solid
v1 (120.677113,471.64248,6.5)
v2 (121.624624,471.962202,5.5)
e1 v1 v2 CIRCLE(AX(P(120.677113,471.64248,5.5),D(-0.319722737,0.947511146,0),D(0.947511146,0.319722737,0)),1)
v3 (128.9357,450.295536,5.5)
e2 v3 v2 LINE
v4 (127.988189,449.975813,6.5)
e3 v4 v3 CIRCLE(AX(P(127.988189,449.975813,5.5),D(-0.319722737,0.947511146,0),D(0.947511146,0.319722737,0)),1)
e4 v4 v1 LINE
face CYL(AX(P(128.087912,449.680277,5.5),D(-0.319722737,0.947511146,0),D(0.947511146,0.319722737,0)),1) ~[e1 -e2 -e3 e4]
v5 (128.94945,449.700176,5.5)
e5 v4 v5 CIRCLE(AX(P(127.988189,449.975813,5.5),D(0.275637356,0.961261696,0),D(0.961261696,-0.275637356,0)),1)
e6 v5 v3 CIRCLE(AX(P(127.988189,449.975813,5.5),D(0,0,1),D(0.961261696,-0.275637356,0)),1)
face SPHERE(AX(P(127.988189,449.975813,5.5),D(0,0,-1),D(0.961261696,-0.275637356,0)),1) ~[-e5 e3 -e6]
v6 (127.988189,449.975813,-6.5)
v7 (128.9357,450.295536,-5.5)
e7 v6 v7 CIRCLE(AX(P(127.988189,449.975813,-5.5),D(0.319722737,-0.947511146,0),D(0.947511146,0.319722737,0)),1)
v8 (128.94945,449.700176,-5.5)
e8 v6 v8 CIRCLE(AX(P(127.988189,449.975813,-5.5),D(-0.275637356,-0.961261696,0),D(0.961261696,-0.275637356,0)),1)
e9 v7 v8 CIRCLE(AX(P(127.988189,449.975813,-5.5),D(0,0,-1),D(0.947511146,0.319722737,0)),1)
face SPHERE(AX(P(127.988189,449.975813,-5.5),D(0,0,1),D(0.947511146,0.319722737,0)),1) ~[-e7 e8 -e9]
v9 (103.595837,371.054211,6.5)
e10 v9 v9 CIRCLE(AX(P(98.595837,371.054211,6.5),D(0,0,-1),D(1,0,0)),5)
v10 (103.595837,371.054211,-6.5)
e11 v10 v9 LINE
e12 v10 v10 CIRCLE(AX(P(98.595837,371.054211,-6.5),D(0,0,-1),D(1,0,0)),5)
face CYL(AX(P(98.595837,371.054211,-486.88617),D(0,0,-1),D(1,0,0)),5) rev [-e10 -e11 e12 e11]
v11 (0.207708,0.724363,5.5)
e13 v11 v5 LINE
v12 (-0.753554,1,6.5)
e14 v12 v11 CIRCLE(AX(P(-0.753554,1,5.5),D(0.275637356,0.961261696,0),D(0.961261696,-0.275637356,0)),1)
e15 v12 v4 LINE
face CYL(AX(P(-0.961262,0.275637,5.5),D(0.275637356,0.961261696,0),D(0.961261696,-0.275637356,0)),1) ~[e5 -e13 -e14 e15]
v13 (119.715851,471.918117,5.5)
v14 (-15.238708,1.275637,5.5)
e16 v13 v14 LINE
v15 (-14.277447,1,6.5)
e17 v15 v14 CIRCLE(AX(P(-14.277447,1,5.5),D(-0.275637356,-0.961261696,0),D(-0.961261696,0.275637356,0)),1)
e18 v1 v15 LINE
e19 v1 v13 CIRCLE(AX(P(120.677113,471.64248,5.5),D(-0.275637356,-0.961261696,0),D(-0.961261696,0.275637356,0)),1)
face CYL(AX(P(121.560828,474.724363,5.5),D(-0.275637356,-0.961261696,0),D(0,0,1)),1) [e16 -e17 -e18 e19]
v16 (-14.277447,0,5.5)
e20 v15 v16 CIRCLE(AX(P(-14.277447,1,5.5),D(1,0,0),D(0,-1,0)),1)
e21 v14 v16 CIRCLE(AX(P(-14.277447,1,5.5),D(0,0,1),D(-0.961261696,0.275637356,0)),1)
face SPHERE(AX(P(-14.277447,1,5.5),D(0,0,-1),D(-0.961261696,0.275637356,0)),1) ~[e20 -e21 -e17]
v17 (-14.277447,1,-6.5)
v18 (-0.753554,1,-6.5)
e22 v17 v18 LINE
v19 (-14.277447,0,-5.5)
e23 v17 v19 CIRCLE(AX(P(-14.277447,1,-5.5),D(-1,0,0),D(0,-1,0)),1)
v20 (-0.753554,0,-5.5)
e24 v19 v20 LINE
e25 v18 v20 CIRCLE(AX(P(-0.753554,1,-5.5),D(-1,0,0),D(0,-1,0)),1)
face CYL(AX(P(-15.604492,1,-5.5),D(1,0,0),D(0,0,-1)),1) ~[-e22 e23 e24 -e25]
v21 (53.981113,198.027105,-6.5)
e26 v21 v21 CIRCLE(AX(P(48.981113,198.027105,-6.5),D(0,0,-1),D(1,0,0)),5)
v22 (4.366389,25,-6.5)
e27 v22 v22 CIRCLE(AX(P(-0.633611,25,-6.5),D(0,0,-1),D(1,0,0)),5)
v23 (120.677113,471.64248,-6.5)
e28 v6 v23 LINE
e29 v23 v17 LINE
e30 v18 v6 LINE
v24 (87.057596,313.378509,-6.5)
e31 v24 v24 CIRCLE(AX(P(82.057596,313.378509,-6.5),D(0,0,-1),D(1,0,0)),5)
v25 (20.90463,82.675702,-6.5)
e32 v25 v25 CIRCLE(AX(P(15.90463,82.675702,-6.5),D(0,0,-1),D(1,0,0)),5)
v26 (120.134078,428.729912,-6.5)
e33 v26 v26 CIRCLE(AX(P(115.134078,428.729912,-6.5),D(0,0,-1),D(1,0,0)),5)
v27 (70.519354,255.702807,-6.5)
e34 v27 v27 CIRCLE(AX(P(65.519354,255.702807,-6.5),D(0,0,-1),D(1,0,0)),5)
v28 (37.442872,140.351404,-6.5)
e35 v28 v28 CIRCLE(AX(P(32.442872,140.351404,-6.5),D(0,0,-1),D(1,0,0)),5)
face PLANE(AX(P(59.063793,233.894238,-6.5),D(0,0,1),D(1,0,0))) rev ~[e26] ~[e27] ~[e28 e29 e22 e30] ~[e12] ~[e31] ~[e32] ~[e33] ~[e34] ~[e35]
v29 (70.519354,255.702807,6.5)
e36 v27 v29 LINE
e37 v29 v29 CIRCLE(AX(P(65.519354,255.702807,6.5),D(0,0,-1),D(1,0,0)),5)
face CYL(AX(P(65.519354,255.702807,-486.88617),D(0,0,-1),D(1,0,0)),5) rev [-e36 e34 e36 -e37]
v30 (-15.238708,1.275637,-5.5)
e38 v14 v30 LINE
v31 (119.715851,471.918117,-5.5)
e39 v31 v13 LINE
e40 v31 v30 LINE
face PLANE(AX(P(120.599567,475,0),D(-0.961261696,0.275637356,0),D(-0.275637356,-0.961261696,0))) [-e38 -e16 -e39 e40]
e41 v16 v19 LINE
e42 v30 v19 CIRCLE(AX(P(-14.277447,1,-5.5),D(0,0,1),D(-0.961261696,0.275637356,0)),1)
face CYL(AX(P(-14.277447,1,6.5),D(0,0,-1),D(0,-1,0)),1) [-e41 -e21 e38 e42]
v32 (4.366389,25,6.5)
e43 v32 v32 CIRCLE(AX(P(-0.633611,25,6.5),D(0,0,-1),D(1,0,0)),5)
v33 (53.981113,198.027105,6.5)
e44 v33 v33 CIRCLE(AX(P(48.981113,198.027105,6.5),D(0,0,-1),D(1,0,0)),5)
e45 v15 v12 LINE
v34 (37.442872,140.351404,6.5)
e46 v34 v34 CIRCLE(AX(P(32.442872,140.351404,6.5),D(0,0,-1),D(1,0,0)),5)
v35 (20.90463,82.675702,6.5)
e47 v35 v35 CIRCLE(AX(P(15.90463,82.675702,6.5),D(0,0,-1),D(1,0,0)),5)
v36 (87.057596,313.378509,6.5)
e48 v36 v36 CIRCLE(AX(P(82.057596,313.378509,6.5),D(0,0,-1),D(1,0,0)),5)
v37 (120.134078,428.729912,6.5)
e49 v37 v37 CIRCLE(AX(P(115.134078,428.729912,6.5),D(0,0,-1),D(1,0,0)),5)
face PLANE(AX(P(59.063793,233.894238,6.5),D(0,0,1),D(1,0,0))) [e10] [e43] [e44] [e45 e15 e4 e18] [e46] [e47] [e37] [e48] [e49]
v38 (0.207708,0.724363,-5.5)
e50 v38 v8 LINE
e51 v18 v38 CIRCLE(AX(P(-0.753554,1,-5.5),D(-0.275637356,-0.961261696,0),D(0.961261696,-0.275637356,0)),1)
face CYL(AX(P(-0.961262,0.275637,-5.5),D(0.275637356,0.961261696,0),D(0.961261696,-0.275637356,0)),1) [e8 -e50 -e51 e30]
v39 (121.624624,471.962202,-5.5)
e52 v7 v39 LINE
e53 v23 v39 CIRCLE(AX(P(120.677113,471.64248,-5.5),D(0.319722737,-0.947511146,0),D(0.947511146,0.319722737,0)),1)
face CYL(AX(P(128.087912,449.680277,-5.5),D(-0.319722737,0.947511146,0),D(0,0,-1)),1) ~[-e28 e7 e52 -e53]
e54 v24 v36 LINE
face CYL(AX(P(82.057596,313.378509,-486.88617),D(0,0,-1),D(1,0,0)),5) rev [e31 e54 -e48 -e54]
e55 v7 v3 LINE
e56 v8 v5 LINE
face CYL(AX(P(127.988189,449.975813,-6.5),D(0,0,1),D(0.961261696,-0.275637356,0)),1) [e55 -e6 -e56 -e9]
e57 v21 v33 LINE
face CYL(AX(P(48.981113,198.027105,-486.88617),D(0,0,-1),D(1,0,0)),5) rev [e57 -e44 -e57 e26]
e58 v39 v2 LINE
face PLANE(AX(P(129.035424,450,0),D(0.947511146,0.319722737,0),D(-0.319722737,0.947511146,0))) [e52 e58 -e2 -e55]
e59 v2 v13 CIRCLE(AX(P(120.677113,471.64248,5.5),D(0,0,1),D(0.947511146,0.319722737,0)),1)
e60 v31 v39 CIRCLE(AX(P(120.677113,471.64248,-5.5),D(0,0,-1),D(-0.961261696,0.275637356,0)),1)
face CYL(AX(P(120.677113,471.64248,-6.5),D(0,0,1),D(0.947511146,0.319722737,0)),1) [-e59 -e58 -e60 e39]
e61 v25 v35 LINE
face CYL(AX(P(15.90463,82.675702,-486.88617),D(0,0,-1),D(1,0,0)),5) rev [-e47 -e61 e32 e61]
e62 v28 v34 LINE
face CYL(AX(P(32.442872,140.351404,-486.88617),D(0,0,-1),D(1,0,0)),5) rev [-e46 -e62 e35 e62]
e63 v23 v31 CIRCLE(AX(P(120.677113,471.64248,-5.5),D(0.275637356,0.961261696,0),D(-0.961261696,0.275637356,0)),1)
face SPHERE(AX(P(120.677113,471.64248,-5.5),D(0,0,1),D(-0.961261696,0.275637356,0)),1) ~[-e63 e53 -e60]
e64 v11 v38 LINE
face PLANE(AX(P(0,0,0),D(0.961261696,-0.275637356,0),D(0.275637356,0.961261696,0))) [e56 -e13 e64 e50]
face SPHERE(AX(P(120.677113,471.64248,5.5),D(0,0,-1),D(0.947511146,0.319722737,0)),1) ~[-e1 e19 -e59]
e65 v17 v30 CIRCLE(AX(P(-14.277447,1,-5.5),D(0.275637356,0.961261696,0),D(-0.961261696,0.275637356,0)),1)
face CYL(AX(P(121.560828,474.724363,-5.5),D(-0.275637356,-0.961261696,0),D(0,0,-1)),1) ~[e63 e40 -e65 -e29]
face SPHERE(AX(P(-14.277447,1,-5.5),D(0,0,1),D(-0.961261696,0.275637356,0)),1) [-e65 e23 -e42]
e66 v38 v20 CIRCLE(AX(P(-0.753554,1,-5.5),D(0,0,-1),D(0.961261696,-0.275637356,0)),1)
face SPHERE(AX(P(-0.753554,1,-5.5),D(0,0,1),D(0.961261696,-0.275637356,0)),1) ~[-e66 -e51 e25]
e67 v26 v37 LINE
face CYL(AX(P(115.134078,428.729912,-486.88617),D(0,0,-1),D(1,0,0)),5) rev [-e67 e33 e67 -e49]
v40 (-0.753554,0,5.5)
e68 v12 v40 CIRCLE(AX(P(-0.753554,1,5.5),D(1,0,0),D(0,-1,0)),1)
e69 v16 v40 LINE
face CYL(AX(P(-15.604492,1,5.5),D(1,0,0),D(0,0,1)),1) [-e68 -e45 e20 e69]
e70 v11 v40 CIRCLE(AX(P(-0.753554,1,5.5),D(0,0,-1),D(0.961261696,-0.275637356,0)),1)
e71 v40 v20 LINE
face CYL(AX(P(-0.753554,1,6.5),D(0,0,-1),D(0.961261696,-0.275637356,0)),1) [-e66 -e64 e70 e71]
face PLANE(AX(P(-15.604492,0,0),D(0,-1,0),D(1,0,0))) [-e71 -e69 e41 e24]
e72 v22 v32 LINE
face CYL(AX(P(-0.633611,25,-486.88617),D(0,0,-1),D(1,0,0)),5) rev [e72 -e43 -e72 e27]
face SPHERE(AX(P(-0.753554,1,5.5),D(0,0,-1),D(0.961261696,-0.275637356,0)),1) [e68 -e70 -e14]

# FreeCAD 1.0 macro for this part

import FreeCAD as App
import Part
import Sketcher
from FreeCAD import Vector
Q = App.Units.Quantity


def edges_at(feature, points):
    """Names of the edges that pass closest to the given points."""
    edges = feature.Shape.Edges
    near = lambda p: min(range(len(edges)), key=lambda i: edges[i].distToShape(Part.Vertex(*p))[0])
    return sorted({f"Edge{near(p) + 1}" for p in points})


def add_polygon(sketch, points):
    """Adds a closed chain of lines whose ends are joined by coincident constraints."""
    first, n = sketch.GeometryCount, len(points)
    for a, b in zip(points, points[1:] + points[:1]):
        sketch.addGeometry(Part.LineSegment(App.Vector(*a, 0), App.Vector(*b, 0)), False)
    for i in range(n):
        sketch.addConstraint(Sketcher.Constraint("Coincident", first + i, 2, first + (i + 1) % n, 1))

doc = App.newDocument("Part")
body = doc.addObject("PartDesign::Body", "Body")

sketch1 = body.newObject("Sketcher::SketchObject", "Sketch")
sketch1.AttachmentSupport = (doc.getObject("XY_Plane"), [""])
sketch1.MapMode = "FlatFace"
add_polygon(sketch1, [(0, 0), (129, 450), (121, 475), (-16, 0)])
sketch1.addConstraint([
    Sketcher.Constraint("Horizontal", 3),
    Sketcher.Constraint("Coincident", 3, 2, -1, 1),
    Sketcher.Constraint("Parallel", 0, 2),
    Sketcher.Constraint("Angle", 0, Q("74 deg")),
    Sketcher.Constraint("DistanceY", -1, 1, 0, 2, 450.0),
    Sketcher.Constraint("DistanceY", -1, 1, 1, 2, 475.0),
    Sketcher.Constraint("DistanceX", 3, 1, 3, 2, 15.604492),
])
pad1 = body.newObject("PartDesign::Pad", "Pad")
pad1.Profile = sketch1
pad1.Length = 13
pad1.Midplane = True

sketch2 = body.newObject("Sketcher::SketchObject", "Sketch001")
sketch2.AttachmentSupport = (doc.getObject("XY_Plane"), [""])
sketch2.MapMode = "FlatFace"
sketch2.AttachmentOffset = App.Placement(Vector(0, 0, 6.5), App.Rotation())
sketch2.addGeometry([
    Part.Circle(Vector(-1, 25, 0), Vector(0, 0, 1), 5),
    Part.Circle(Vector(16, 83, 0), Vector(0, 0, 1), 5),
    Part.Circle(Vector(32, 140, 0), Vector(0, 0, 1), 5),
    Part.Circle(Vector(49, 198, 0), Vector(0, 0, 1), 5),
    Part.Circle(Vector(66, 256, 0), Vector(0, 0, 1), 5),
    Part.Circle(Vector(82, 313, 0), Vector(0, 0, 1), 5),
    Part.Circle(Vector(99, 371, 0), Vector(0, 0, 1), 5),
    Part.Circle(Vector(115, 429, 0), Vector(0, 0, 1), 5),
], False)
sketch2.addConstraint([
    Sketcher.Constraint("Equal", 0, 1),
    Sketcher.Constraint("Equal", 1, 2),
    Sketcher.Constraint("Equal", 2, 3),
    Sketcher.Constraint("Equal", 3, 4),
    Sketcher.Constraint("Equal", 4, 5),
    Sketcher.Constraint("Equal", 5, 6),
    Sketcher.Constraint("Equal", 6, 7),
    Sketcher.Constraint("Diameter", 0, 10.0),
    Sketcher.Constraint("DistanceY", -1, 1, 0, 3, 25.0),
    Sketcher.Constraint("DistanceY", -1, 1, 1, 3, 82.675702),
    Sketcher.Constraint("DistanceY", 1, 3, 2, 3, 57.675702),
    Sketcher.Constraint("DistanceY", 2, 3, 3, 3, 57.675702),
    Sketcher.Constraint("DistanceY", 3, 3, 4, 3, 57.675702),
    Sketcher.Constraint("DistanceY", 4, 3, 5, 3, 57.675702),
    Sketcher.Constraint("DistanceY", 5, 3, 6, 3, 57.675702),
    Sketcher.Constraint("DistanceY", 6, 3, 7, 3, 57.675702),
    Sketcher.Constraint("DistanceX", 0, 3, -1, 1, 0.633611),
    Sketcher.Constraint("DistanceX", -1, 1, 1, 3, 15.90463),
    Sketcher.Constraint("DistanceX", -1, 1, 2, 3, 32.442872),
    Sketcher.Constraint("DistanceX", -1, 1, 7, 3, 115.134078),
    Sketcher.Constraint("DistanceX", 2, 3, 3, 3, 16.538241),
    Sketcher.Constraint("DistanceX", 3, 3, 4, 3, 16.538241),
    Sketcher.Constraint("DistanceX", 4, 3, 5, 3, 16.538241),
    Sketcher.Constraint("DistanceX", 5, 3, 6, 3, 16.538241),
])
pocket1 = body.newObject("PartDesign::Pocket", "Pocket")
pocket1.Profile = sketch2
pocket1.Type = "ThroughAll"
pocket1.Midplane = True
doc.recompute()

fillet = body.newObject("PartDesign::Fillet", "Fillet")
fillet.Base = (pocket1, edges_at(pocket1, [
    (124.817, 462.5, 6.5),
    (52.498, 237.5, 6.5),
    (-7.802, 0, 6.5),
    (52.498, 237.5, -6.5),
    (124.817, 462.5, -6.5),
    (64.518, 225, -6.5),
    (-7.802, 0, -6.5),
    (-15.604, 0, 0),
    (120.6, 475, 0),
    (129.035, 450, 0),
    (0, 0, 0),
    (64.518, 225, 6.5),
]))
fillet.Radius = 1

doc.recompute()
